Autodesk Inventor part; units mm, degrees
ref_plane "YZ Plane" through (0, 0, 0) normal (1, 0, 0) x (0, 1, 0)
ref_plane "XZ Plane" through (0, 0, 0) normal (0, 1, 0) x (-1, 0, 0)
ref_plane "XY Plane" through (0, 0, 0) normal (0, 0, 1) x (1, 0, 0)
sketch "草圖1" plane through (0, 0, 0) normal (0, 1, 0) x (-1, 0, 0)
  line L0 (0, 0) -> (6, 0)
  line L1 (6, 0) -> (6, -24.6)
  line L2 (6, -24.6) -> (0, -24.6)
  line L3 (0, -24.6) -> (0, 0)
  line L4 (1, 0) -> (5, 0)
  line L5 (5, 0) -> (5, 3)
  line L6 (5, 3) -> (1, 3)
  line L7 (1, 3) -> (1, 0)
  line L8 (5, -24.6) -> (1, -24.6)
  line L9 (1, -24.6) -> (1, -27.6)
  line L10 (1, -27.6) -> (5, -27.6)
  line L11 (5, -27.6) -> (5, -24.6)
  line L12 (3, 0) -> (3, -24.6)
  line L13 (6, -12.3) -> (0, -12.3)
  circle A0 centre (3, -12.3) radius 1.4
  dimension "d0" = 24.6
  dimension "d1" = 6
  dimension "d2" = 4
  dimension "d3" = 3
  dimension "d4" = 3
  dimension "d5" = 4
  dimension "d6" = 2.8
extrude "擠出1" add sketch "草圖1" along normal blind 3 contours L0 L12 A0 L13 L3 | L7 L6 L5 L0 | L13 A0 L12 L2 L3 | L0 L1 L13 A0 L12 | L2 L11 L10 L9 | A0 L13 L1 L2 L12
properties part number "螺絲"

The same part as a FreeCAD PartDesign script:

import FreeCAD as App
import Part
import Sketcher

V = App.Vector

doc = App.newDocument("Part")
body = doc.addObject("PartDesign::Body", "Body")

# Sketch on XZ plane
sketch1 = body.newObject("Sketcher::SketchObject", "Sketch")
sketch1.AttachmentSupport = (doc.getObject("XZ_Plane"), [""])
sketch1.MapMode = "FlatFace"
sketch1.addGeometry([
    Part.LineSegment(V(-1, 0, 0), V(0, 0, 0)),  # 0
    Part.LineSegment(V(0, 0, 0), V(0, -24.6, 0)),  # 1
    Part.LineSegment(V(0, -24.6, 0), V(-1, -24.6, 0)),  # 2
    Part.LineSegment(V(-1, -24.6, 0), V(-1, -27.6, 0)),  # 3
    Part.LineSegment(V(-1, -27.6, 0), V(-5, -27.6, 0)),  # 4
    Part.LineSegment(V(-5, -27.6, 0), V(-5, -24.6, 0)),  # 5
    Part.LineSegment(V(-5, -24.6, 0), V(-6, -24.6, 0)),  # 6
    Part.LineSegment(V(-6, -24.6, 0), V(-6, 0, 0)),  # 7
    Part.LineSegment(V(-6, 0, 0), V(-5, 0, 0)),  # 8
    Part.LineSegment(V(-5, 0, 0), V(-5, 3, 0)),  # 9
    Part.LineSegment(V(-5, 3, 0), V(-1, 3, 0)),  # 10
    Part.LineSegment(V(-1, 3, 0), V(-1, 0, 0)),  # 11
    Part.Circle(V(-3, -12.3, 0), V(0, 0, 1), 1.4),  # 12
], False)
sketch1.addConstraint([
    Sketcher.Constraint("Coincident", 0, 2, 1, 1),
    Sketcher.Constraint("Coincident", 1, 2, 2, 1),
    Sketcher.Constraint("Coincident", 2, 2, 3, 1),
    Sketcher.Constraint("Coincident", 3, 2, 4, 1),
    Sketcher.Constraint("Coincident", 4, 2, 5, 1),
    Sketcher.Constraint("Coincident", 5, 2, 6, 1),
    Sketcher.Constraint("Coincident", 6, 2, 7, 1),
    Sketcher.Constraint("Coincident", 7, 2, 8, 1),
    Sketcher.Constraint("Coincident", 8, 2, 9, 1),
    Sketcher.Constraint("Coincident", 9, 2, 10, 1),
    Sketcher.Constraint("Coincident", 10, 2, 11, 1),
    Sketcher.Constraint("Coincident", 11, 2, 0, 1),
    Sketcher.Constraint("Horizontal", 0),
    Sketcher.Constraint("Vertical", 1),
    Sketcher.Constraint("Horizontal", 2),
    Sketcher.Constraint("Vertical", 3),
    Sketcher.Constraint("Horizontal", 4),
    Sketcher.Constraint("Vertical", 5),
    Sketcher.Constraint("Horizontal", 6),
    Sketcher.Constraint("Vertical", 7),
    Sketcher.Constraint("Horizontal", 8),
    Sketcher.Constraint("Vertical", 9),
    Sketcher.Constraint("Horizontal", 10),
    Sketcher.Constraint("Vertical", 11),
    Sketcher.Constraint("Coincident", 0, 2, -1, 1),
    Sketcher.Constraint("PointOnObject", 7, 2, -1),
    Sketcher.Constraint("Horizontal", 2, 2, 5, 2),
    Sketcher.Constraint("Vertical", 5, 2, 8, 2),
    Sketcher.Constraint("Vertical", 3, 2, 10, 2),
    Sketcher.Constraint("Equal", 2, 6),
    Sketcher.Constraint("Equal", 5, 9),
    Sketcher.Constraint("Diameter", 12, 2.8),
    Sketcher.Constraint("DistanceX", 4, 2, 4, 1, 4.0),
    Sketcher.Constraint("DistanceY", 3, 2, 3, 1, 3.0),
    Sketcher.Constraint("DistanceY", 1, 2, 1, 1, 24.6),
    Sketcher.Constraint("DistanceX", 12, 3, -1, 1, 3.0),
    Sketcher.Constraint("DistanceX", 6, 2, -1, 1, 6.0),
    Sketcher.Constraint("DistanceY", 12, 3, -1, 1, 12.3),
])
pad1 = body.newObject("PartDesign::Pad", "Pad")
pad1.Profile = sketch1
pad1.Length = 3
pad1.Reversed = True

doc.recompute()
